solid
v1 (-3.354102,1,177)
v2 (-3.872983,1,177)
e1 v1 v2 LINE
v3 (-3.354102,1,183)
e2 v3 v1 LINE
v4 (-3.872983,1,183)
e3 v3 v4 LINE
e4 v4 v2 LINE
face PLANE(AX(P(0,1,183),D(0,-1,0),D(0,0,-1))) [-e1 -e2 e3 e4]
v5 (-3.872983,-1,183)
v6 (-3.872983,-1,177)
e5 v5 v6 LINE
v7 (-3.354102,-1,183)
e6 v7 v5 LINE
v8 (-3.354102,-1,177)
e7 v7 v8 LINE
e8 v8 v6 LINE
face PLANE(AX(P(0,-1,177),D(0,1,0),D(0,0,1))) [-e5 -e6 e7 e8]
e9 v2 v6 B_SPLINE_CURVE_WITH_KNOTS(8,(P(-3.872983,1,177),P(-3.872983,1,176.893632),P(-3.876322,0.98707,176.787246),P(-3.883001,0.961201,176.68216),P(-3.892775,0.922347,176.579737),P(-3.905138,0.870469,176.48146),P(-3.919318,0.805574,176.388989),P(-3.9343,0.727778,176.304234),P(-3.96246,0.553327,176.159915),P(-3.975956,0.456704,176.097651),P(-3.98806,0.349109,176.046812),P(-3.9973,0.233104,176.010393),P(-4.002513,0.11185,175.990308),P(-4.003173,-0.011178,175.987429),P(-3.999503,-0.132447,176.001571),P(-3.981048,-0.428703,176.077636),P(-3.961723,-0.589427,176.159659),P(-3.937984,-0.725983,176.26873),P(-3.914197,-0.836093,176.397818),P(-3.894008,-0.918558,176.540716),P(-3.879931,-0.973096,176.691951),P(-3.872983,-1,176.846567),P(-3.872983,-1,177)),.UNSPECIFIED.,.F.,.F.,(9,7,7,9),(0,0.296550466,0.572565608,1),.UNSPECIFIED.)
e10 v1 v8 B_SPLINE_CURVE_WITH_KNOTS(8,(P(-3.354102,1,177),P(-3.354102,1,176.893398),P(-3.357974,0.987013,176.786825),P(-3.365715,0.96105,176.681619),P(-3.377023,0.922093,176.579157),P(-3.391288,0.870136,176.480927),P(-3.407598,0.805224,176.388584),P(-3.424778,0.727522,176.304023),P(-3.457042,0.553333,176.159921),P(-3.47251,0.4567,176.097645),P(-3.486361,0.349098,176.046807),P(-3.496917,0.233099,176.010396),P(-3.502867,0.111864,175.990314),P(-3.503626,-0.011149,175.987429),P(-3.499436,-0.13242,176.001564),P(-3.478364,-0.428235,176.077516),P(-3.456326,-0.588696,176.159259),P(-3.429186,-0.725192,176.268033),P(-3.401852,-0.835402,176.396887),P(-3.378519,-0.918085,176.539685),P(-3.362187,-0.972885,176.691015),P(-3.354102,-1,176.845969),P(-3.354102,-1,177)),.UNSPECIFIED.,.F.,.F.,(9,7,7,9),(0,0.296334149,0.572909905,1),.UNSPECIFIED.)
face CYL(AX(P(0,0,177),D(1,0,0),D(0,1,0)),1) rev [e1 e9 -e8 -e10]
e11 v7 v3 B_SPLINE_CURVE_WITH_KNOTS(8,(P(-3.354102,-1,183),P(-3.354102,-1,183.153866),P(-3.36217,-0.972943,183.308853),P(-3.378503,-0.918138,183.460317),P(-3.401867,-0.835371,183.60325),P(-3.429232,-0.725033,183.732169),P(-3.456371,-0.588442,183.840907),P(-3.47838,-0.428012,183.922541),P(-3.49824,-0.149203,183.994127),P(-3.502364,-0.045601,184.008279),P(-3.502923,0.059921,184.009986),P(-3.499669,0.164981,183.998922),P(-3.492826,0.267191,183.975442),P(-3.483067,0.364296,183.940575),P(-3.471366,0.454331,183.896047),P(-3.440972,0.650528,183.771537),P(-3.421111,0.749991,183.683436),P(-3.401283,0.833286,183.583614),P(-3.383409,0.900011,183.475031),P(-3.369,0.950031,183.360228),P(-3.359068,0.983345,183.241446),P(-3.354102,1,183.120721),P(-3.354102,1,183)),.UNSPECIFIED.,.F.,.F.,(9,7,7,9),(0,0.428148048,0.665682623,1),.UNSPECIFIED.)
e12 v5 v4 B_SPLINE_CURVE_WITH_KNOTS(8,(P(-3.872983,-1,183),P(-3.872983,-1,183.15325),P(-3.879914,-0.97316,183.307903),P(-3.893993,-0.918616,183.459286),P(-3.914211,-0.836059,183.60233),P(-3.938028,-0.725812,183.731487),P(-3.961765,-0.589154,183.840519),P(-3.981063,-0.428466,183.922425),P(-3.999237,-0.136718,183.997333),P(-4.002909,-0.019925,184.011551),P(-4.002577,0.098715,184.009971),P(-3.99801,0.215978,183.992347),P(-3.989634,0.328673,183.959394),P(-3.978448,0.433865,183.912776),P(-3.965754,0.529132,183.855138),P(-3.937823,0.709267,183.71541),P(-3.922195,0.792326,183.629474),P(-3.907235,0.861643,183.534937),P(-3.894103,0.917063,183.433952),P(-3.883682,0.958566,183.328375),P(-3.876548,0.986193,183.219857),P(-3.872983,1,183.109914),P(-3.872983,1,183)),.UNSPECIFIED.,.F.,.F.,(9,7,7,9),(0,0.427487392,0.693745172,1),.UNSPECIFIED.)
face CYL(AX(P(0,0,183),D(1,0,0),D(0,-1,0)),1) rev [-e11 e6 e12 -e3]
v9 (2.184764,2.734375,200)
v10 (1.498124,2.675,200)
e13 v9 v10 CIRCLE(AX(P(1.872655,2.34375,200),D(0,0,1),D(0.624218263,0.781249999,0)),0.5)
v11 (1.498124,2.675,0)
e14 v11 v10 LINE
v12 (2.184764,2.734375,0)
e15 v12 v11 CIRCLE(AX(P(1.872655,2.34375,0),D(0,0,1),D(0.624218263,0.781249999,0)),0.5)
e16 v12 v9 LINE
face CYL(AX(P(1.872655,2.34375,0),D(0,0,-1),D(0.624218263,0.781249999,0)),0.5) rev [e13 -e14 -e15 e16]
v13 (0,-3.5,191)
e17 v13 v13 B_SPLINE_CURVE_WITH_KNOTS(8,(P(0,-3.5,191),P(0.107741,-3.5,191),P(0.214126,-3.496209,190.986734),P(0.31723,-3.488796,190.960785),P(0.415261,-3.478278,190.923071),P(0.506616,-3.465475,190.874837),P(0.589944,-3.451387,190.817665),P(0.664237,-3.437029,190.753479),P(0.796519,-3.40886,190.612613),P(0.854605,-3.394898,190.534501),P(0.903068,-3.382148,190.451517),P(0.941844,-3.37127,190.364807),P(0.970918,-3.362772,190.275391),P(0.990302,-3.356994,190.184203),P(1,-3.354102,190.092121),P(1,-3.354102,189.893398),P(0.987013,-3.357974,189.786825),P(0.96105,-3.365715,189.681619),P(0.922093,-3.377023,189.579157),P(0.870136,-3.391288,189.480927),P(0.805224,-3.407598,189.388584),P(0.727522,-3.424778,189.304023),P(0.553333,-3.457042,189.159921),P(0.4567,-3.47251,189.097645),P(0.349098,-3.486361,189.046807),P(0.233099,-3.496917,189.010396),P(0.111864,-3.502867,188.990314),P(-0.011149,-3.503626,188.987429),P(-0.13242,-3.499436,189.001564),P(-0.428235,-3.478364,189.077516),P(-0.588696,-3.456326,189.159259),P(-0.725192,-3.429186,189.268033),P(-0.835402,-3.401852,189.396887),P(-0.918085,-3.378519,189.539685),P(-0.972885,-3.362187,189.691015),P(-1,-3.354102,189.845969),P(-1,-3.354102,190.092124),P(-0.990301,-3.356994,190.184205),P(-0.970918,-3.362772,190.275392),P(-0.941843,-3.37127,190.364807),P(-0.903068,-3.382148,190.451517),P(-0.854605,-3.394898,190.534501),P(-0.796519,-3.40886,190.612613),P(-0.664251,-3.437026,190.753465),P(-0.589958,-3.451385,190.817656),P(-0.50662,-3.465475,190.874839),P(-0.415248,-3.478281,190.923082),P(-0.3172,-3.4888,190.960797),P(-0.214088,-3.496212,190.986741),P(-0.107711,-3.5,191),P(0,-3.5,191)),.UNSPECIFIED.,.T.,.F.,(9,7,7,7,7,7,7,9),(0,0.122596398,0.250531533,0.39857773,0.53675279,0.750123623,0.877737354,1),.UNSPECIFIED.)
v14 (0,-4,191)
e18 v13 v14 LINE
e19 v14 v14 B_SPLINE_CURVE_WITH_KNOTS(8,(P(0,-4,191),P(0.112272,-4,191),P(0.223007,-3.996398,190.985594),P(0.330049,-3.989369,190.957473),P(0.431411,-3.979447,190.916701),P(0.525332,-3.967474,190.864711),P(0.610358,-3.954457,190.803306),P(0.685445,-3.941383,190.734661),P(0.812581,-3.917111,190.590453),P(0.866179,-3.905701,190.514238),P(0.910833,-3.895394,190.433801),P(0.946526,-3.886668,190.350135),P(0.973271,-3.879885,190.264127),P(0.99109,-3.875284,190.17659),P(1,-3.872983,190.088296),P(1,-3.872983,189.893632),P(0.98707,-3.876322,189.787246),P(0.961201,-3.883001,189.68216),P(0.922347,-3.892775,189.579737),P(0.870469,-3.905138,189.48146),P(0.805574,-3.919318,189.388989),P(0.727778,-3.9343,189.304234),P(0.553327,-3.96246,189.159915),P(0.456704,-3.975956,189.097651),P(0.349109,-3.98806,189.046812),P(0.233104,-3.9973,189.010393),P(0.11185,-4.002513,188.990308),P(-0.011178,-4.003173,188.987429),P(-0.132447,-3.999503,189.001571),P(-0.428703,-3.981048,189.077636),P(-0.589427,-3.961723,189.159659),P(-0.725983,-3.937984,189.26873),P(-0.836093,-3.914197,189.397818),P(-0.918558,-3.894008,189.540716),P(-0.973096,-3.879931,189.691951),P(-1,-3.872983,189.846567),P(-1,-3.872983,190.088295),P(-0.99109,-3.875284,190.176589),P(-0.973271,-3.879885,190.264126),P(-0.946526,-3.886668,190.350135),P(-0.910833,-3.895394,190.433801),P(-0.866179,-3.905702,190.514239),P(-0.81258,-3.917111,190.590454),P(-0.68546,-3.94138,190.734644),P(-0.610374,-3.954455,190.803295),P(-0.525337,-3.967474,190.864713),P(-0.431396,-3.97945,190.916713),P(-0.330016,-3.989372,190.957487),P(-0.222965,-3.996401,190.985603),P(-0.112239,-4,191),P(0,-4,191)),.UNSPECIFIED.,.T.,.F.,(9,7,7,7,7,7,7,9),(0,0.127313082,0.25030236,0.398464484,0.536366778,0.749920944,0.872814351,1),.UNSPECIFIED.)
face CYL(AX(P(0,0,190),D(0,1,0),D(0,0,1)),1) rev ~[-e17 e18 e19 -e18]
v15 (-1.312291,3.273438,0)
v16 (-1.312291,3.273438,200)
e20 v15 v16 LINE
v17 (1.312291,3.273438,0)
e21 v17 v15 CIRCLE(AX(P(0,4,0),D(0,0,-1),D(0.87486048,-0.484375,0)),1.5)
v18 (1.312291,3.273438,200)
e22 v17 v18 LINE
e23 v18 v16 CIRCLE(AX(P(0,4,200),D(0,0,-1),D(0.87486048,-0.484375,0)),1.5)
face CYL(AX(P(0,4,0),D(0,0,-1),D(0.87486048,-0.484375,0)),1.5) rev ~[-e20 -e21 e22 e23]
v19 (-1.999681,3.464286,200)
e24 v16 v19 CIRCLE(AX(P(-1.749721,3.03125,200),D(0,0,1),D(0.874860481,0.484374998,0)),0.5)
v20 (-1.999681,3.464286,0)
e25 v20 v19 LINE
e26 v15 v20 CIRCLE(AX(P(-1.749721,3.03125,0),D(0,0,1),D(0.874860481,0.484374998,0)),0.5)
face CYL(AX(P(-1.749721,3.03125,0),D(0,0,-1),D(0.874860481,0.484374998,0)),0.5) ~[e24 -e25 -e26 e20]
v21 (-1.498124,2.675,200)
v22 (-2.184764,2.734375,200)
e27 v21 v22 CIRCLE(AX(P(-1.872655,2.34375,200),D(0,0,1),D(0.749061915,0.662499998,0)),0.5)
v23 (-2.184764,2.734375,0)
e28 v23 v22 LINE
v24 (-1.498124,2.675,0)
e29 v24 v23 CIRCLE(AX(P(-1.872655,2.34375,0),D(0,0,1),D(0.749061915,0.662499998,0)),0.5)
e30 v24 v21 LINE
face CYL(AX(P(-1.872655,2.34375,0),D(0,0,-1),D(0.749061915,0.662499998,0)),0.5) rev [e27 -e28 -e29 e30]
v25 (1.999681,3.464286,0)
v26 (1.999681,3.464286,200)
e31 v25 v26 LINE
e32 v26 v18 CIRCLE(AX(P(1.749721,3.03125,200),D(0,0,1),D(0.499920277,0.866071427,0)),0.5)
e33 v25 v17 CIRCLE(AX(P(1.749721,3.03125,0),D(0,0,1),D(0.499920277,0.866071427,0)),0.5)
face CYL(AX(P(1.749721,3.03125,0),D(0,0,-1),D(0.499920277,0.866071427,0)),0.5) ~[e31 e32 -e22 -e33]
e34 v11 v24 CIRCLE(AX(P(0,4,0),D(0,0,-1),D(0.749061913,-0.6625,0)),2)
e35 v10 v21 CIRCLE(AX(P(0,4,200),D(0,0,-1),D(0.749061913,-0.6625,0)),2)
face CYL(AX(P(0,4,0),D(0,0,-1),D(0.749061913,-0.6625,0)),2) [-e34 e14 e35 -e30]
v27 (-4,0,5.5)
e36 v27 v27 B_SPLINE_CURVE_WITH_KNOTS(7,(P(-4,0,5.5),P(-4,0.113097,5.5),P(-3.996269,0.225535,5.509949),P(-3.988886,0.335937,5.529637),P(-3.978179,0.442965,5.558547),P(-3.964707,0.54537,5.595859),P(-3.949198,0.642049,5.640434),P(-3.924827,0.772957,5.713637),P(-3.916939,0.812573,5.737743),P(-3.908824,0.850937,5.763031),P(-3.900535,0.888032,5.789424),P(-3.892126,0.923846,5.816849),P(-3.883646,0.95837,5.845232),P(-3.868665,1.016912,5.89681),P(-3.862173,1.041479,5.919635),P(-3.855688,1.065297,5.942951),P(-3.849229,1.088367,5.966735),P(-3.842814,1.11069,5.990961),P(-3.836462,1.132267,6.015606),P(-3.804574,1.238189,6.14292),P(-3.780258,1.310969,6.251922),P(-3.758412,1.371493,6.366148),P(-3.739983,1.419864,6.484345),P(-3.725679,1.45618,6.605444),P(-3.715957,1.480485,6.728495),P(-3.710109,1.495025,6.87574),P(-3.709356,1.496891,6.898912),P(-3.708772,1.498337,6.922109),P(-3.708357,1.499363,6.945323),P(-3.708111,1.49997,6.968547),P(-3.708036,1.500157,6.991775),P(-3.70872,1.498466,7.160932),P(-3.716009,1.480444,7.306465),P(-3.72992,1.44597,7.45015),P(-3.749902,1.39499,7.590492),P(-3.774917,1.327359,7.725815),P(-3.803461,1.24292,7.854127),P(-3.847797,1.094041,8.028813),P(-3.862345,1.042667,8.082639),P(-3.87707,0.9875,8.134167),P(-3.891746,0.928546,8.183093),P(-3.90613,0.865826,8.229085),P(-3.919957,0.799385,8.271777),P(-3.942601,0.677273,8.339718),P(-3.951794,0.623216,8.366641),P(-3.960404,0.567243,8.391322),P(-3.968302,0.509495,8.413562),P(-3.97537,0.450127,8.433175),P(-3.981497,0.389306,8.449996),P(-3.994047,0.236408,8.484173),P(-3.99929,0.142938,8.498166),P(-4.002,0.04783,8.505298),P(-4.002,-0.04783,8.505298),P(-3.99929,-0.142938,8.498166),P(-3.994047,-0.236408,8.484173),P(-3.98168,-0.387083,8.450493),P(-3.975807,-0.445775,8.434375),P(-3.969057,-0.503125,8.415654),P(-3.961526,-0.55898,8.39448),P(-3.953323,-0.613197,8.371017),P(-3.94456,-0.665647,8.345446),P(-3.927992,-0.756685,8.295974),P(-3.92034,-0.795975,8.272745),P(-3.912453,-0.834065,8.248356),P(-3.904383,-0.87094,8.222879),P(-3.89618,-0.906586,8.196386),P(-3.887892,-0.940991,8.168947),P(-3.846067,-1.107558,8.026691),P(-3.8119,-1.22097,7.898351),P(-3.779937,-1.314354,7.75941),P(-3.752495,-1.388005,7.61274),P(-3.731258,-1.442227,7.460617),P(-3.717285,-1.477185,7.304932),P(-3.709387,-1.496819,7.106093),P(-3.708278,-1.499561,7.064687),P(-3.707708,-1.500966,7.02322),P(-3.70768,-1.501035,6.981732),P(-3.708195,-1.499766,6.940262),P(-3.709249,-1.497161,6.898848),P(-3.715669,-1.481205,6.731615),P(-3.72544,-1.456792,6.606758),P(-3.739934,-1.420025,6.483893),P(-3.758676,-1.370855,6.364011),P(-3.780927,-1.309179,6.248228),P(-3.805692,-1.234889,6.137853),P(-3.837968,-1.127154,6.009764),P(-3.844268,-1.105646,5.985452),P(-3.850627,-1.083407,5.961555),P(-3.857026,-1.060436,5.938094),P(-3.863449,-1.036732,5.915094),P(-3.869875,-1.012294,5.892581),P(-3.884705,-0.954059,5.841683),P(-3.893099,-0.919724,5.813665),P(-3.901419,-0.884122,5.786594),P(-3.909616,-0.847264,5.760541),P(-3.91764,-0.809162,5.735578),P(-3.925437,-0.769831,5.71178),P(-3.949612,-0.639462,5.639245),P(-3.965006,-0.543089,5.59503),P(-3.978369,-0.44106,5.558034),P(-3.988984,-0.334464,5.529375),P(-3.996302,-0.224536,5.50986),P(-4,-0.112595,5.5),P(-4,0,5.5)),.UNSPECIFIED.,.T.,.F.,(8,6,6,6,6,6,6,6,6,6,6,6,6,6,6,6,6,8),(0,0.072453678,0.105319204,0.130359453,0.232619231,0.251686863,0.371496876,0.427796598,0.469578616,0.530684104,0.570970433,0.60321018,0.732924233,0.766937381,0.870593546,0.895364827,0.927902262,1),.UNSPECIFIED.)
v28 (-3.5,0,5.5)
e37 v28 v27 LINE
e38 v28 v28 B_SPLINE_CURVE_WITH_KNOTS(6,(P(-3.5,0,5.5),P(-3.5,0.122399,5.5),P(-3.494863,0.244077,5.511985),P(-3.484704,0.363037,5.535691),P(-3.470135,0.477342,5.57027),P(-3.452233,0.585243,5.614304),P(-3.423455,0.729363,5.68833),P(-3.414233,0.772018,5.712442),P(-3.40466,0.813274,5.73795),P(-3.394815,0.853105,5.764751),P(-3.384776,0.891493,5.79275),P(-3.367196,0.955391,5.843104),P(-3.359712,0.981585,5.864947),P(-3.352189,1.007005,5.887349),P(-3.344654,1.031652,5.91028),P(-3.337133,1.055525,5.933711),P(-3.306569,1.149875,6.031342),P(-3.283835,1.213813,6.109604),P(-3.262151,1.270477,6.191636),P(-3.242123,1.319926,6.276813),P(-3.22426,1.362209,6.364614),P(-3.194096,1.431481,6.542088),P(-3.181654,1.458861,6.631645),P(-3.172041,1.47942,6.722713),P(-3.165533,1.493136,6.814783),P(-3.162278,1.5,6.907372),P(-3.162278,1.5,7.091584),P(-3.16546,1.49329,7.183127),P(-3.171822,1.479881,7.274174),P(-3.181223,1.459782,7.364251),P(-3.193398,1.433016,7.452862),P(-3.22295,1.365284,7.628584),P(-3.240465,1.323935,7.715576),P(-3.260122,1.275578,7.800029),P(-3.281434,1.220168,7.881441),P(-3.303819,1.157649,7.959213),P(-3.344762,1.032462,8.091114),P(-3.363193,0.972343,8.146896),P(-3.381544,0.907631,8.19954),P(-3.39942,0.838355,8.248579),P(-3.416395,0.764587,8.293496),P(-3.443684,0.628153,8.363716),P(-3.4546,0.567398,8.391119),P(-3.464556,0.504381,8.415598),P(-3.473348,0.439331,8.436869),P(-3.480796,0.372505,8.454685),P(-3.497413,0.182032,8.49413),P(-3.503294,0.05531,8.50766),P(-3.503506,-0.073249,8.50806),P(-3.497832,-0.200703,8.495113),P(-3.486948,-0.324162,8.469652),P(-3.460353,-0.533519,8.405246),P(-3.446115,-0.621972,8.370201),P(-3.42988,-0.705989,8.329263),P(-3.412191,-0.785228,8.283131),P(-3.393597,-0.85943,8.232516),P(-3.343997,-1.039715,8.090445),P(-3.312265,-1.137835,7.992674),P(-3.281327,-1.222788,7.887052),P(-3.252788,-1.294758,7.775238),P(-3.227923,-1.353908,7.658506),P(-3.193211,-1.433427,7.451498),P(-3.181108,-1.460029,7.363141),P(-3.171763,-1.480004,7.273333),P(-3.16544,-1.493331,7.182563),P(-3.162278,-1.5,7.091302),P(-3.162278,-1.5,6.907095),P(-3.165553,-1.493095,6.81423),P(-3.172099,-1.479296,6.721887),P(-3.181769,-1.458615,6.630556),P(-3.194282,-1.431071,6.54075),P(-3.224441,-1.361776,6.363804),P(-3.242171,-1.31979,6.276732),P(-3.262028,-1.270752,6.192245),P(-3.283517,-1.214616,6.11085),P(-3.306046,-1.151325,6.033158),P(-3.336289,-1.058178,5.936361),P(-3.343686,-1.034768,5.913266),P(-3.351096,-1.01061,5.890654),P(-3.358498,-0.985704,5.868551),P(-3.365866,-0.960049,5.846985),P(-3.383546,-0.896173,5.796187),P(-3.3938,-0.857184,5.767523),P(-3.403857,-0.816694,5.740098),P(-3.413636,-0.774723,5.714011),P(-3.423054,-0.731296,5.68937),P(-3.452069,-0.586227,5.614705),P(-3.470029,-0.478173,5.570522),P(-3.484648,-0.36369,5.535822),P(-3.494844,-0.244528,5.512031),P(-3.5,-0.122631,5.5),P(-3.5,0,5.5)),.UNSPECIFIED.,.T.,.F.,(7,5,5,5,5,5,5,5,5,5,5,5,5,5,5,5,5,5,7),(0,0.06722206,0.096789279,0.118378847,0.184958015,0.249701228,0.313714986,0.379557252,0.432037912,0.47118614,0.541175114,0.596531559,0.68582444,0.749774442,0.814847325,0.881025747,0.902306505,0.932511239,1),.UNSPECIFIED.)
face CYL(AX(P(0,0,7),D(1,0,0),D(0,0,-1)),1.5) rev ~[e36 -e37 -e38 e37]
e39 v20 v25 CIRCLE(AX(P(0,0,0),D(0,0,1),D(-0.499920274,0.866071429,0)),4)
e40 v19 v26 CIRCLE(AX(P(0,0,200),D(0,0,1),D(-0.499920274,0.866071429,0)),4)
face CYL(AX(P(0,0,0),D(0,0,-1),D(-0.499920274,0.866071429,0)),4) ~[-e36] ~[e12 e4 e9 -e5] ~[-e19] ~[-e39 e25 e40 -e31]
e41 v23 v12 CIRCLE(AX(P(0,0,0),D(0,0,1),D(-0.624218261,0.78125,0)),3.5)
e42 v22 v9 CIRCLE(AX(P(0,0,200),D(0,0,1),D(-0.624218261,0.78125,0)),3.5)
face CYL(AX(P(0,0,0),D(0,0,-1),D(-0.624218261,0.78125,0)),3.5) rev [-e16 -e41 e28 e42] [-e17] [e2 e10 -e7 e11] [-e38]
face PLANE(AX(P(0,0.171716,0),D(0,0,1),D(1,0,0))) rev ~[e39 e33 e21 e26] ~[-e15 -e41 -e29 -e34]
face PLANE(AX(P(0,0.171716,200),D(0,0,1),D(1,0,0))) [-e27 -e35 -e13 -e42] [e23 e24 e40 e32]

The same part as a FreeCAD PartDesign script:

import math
import FreeCAD as App
import Part
import Sketcher

doc = App.newDocument("Part")
body = doc.addObject("PartDesign::Body", "Body")

# Sketch on XY plane
sketch1 = body.newObject("Sketcher::SketchObject", "Sketch")
sketch1.AttachmentSupport = (doc.getObject("XY_Plane"), [""])
sketch1.MapMode = "FlatFace"
sketch1.addGeometry(Part.ArcOfCircle(Part.Circle(App.Vector(0, 0, 0), App.Vector(0, 0, 1), 4), math.radians(120), math.radians(420)), False)
sketch1.addGeometry(Part.ArcOfCircle(Part.Circle(App.Vector(1.75, 3.03, 0), App.Vector(0, 0, 1), 0.5), math.radians(60), math.radians(151)), False)
sketch1.addGeometry(Part.ArcOfCircle(Part.Circle(App.Vector(0, 4, 0), App.Vector(0, 0, 1), 1.5), math.radians(-151), math.radians(-29)), False)
sketch1.addGeometry(Part.ArcOfCircle(Part.Circle(App.Vector(-1.75, 3.03, 0), App.Vector(0, 0, 1), 0.5), math.radians(29), math.radians(120)), False)
sketch1.addGeometry(Part.ArcOfCircle(Part.Circle(App.Vector(0, 0, 0), App.Vector(0, 0, 1), 3.5), math.radians(129), math.radians(411)), False)
sketch1.addGeometry(Part.ArcOfCircle(Part.Circle(App.Vector(-1.87, 2.34, 0), App.Vector(0, 0, 1), 0.5), math.radians(41), math.radians(129)), False)
sketch1.addGeometry(Part.ArcOfCircle(Part.Circle(App.Vector(0, 4, 0), App.Vector(0, 0, 1), 2), math.radians(-139), math.radians(-41)), False)
sketch1.addGeometry(Part.ArcOfCircle(Part.Circle(App.Vector(1.87, 2.34, 0), App.Vector(0, 0, 1), 0.5), math.radians(51), math.radians(139)), False)
sketch1.addConstraint(Sketcher.Constraint("Tangent", 0, 2, 1, 1))
sketch1.addConstraint(Sketcher.Constraint("Tangent", 1, 2, 2, 2))
sketch1.addConstraint(Sketcher.Constraint("Tangent", 2, 1, 3, 1))
sketch1.addConstraint(Sketcher.Constraint("Tangent", 3, 2, 0, 1))
sketch1.addConstraint(Sketcher.Constraint("Tangent", 4, 1, 5, 2))
sketch1.addConstraint(Sketcher.Constraint("Tangent", 5, 1, 6, 1))
sketch1.addConstraint(Sketcher.Constraint("Tangent", 6, 2, 7, 2))
sketch1.addConstraint(Sketcher.Constraint("Tangent", 7, 1, 4, 2))
sketch1.addConstraint(Sketcher.Constraint("Coincident", 0, 3, -1, 1))
sketch1.addConstraint(Sketcher.Constraint("Coincident", 4, 3, -1, 1))
sketch1.addConstraint(Sketcher.Constraint("Coincident", 6, 3, 2, 3))
sketch1.addConstraint(Sketcher.Constraint("Equal", 1, 3))
sketch1.addConstraint(Sketcher.Constraint("Equal", 3, 5))
sketch1.addConstraint(Sketcher.Constraint("Equal", 5, 7))
sketch1.addConstraint(Sketcher.Constraint("PointOnObject", 2, 3, -2))
sketch1.addConstraint(Sketcher.Constraint("Radius", 0, 4.0))
sketch1.addConstraint(Sketcher.Constraint("Radius", 6, 2.0))
sketch1.addConstraint(Sketcher.Constraint("Radius", 1, 0.5))
sketch1.addConstraint(Sketcher.Constraint("Radius", 2, 1.5))
sketch1.addConstraint(Sketcher.Constraint("Radius", 4, 3.5))
sketch1.addConstraint(Sketcher.Constraint("DistanceY", -1, 1, 2, 3, 4.0))
pad1 = body.newObject("PartDesign::Pad", "Pad")
pad1.Profile = sketch1
pad1.Length = 200

# Sketch on YZ plane
sketch2 = body.newObject("Sketcher::SketchObject", "Sketch001")
sketch2.AttachmentSupport = (doc.getObject("YZ_Plane"), [""])
sketch2.MapMode = "FlatFace"
sketch2.addGeometry(Part.Circle(App.Vector(0, 7, 0), App.Vector(0, 0, 1), 1.5), False)
sketch2.addGeometry(Part.LineSegment(App.Vector(1, 177, 0), App.Vector(1, 183, 0)), False)
sketch2.addGeometry(Part.ArcOfCircle(Part.Circle(App.Vector(0, 183, 0), App.Vector(0, 0, 1), 1), math.radians(0), math.radians(180)), False)
sketch2.addGeometry(Part.LineSegment(App.Vector(-1, 183, 0), App.Vector(-1, 177, 0)), False)
sketch2.addGeometry(Part.ArcOfCircle(Part.Circle(App.Vector(0, 177, 0), App.Vector(0, 0, 1), 1), math.radians(180), math.radians(360)), False)
sketch2.addConstraint(Sketcher.Constraint("Tangent", 1, 2, 2, 1))
sketch2.addConstraint(Sketcher.Constraint("Tangent", 2, 2, 3, 1))
sketch2.addConstraint(Sketcher.Constraint("Tangent", 3, 2, 4, 1))
sketch2.addConstraint(Sketcher.Constraint("Tangent", 4, 2, 1, 1))
sketch2.addConstraint(Sketcher.Constraint("Vertical", 1))
sketch2.addConstraint(Sketcher.Constraint("Vertical", 3))
sketch2.addConstraint(Sketcher.Constraint("PointOnObject", 0, 3, -2))
sketch2.addConstraint(Sketcher.Constraint("PointOnObject", 2, 3, -2))
sketch2.addConstraint(Sketcher.Constraint("Diameter", 0, 3.0))
sketch2.addConstraint(Sketcher.Constraint("Radius", 2, 1.0))
sketch2.addConstraint(Sketcher.Constraint("DistanceY", 1, 1, 1, 2, 6.0))
sketch2.addConstraint(Sketcher.Constraint("DistanceY", -1, 1, 0, 3, 7.0))
sketch2.addConstraint(Sketcher.Constraint("DistanceY", -1, 1, 2, 3, 183.0))
pocket1 = body.newObject("PartDesign::Pocket", "Pocket")
pocket1.Profile = sketch2
pocket1.Length = 200

# Sketch on XZ plane
sketch3 = body.newObject("Sketcher::SketchObject", "Sketch002")
sketch3.AttachmentSupport = (doc.getObject("XZ_Plane"), [""])
sketch3.MapMode = "FlatFace"
sketch3.addGeometry(Part.Circle(App.Vector(0, 190, 0), App.Vector(0, 0, 1), 1), False)
sketch3.addConstraint(Sketcher.Constraint("PointOnObject", 0, 3, -2))
sketch3.addConstraint(Sketcher.Constraint("Diameter", 0, 2.0))
sketch3.addConstraint(Sketcher.Constraint("DistanceY", -1, 1, 0, 3, 190.0))
pocket2 = body.newObject("PartDesign::Pocket", "Pocket001")
pocket2.Profile = sketch3
pocket2.Length = 200
pocket2.Reversed = True

doc.recompute()
